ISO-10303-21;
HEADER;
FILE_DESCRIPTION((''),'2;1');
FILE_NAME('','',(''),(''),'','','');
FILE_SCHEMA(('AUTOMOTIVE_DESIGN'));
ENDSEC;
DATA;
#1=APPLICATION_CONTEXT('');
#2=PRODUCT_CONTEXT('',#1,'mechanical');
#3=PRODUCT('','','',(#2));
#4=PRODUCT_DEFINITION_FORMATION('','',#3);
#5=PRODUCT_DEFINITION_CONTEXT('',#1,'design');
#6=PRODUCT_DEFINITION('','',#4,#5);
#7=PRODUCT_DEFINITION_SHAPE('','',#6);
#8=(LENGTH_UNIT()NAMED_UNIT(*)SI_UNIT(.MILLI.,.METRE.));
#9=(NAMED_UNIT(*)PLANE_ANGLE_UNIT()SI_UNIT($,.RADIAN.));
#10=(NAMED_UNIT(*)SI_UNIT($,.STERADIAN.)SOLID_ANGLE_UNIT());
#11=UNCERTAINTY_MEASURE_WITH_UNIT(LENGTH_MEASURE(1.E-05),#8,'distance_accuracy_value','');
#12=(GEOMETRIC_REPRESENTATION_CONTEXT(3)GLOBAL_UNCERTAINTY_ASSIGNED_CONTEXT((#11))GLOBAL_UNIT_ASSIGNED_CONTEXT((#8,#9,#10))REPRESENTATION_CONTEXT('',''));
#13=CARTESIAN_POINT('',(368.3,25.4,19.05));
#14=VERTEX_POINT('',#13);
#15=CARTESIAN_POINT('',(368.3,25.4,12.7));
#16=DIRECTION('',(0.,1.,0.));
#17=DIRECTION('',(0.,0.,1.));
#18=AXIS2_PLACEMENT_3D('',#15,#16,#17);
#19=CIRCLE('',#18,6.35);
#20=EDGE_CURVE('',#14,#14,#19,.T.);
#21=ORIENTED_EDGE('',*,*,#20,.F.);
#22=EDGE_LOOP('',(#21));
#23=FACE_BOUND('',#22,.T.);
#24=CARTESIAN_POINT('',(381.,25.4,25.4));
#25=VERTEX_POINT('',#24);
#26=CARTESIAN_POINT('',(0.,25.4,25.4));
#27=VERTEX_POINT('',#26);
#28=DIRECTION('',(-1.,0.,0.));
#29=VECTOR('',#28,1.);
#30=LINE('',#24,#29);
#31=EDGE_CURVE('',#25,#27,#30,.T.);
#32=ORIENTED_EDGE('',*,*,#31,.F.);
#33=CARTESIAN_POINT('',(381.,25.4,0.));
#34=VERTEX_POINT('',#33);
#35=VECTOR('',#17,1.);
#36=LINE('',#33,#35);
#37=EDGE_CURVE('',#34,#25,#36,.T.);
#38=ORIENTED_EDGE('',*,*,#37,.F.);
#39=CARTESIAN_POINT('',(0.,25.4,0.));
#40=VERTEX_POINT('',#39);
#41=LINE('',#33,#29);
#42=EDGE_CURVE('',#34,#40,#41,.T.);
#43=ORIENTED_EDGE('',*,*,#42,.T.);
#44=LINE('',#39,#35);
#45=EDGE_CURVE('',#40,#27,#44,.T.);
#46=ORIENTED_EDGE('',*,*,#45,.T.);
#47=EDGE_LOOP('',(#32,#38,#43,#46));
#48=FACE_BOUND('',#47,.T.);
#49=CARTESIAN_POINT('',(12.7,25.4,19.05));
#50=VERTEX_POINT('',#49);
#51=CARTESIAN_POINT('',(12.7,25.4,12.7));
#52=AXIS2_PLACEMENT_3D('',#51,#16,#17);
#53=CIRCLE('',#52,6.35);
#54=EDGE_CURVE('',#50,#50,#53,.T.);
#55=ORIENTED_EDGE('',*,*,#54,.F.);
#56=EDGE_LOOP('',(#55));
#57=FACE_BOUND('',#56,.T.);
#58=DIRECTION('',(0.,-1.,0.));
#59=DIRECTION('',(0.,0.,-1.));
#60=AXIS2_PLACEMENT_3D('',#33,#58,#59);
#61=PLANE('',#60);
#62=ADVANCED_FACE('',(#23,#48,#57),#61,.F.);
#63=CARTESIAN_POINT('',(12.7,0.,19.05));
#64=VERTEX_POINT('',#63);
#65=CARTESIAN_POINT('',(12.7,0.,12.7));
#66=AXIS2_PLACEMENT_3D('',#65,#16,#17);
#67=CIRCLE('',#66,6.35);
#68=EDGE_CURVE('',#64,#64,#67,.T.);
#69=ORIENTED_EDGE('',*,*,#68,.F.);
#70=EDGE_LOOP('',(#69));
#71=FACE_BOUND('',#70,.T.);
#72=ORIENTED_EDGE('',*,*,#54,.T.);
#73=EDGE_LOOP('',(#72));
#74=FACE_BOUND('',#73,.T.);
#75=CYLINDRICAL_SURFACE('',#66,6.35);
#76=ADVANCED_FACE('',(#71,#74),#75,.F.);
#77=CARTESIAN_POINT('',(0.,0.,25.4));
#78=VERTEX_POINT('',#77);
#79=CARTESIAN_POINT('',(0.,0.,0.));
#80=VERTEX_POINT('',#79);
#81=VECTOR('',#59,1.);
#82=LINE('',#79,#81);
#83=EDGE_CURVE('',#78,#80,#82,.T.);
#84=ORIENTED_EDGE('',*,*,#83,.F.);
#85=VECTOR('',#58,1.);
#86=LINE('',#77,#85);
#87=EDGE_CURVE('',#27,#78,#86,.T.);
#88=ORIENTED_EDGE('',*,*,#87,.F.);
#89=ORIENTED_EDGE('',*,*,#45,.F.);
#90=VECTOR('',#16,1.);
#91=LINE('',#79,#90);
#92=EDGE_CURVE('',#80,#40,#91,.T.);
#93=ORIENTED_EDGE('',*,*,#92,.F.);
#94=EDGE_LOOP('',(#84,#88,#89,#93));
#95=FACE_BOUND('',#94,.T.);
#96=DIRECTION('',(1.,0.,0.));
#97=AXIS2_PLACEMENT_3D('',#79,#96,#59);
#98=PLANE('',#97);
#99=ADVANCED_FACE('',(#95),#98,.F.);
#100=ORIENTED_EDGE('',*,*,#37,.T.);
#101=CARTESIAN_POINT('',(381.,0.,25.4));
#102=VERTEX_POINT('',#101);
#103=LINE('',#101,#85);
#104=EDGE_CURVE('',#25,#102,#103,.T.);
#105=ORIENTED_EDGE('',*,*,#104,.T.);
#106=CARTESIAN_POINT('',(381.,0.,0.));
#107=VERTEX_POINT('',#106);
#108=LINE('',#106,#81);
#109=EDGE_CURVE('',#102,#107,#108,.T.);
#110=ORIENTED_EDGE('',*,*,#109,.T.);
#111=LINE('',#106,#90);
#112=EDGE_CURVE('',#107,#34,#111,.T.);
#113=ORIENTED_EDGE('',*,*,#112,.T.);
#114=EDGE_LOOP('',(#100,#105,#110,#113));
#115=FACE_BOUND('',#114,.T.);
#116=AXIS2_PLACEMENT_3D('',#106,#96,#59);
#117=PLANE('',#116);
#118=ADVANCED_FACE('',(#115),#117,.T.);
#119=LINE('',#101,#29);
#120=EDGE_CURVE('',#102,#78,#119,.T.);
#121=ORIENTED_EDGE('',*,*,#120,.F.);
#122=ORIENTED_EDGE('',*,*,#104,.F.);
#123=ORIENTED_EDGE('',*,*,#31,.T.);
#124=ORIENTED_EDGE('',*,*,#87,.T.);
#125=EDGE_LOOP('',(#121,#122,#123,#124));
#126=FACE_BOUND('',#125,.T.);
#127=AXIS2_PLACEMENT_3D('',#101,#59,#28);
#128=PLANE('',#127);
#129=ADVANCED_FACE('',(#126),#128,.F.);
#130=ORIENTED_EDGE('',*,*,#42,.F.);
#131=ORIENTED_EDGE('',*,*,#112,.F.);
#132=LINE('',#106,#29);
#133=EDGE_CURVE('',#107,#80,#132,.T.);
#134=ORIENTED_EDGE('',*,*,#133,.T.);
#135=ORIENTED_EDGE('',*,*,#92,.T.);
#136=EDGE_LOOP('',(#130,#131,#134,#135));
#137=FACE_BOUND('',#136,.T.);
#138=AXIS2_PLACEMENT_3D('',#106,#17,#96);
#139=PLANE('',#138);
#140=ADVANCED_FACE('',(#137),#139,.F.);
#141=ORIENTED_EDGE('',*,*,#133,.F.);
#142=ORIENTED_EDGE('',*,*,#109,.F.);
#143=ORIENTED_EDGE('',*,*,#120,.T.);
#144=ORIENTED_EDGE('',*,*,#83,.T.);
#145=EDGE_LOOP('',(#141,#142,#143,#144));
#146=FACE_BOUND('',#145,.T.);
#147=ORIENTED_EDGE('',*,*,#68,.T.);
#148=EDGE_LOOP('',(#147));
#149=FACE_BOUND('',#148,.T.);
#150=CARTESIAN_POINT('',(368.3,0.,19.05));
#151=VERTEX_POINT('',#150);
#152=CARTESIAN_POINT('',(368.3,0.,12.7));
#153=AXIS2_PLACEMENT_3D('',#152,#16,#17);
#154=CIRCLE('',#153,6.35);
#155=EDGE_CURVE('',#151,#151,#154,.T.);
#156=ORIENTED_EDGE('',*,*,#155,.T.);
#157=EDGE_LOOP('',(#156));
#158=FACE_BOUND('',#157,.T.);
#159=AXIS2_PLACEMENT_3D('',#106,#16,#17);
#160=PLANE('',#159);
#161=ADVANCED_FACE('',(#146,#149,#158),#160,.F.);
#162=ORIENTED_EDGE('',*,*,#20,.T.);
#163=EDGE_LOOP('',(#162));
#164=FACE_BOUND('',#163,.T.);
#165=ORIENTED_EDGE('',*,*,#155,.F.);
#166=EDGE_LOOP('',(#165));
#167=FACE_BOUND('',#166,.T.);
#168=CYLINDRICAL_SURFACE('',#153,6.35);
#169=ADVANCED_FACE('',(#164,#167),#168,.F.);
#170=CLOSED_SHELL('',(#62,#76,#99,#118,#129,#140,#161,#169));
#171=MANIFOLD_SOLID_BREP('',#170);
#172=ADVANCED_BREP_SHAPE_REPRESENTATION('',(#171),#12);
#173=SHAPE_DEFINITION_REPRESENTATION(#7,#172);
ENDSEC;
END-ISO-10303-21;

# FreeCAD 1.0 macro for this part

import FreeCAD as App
import Part
import Sketcher

V = App.Vector
Q = App.Units.Quantity

doc = App.newDocument("Part")
body = doc.addObject("PartDesign::Body", "Body")

# Sketch on YZ plane
sketch1 = doc.addObject("Sketcher::SketchObject", "Sketch")
body.addObject(sketch1)
sketch1.AttachmentSupport = (doc.YZ_Plane, [""])
sketch1.MapMode = "FlatFace"
sketch1.addGeometry(Part.LineSegment(V(25, 25, 0), V(0, 25, 0)), False)
sketch1.addGeometry(Part.LineSegment(V(0, 25, 0), V(0, 0, 0)), False)
sketch1.addGeometry(Part.LineSegment(V(0, 0, 0), V(25, 0, 0)), False)
sketch1.addGeometry(Part.LineSegment(V(25, 0, 0), V(25, 25, 0)), False)
sketch1.addConstraint(Sketcher.Constraint("Coincident", 0, 2, 1, 1))
sketch1.addConstraint(Sketcher.Constraint("Coincident", 1, 2, 2, 1))
sketch1.addConstraint(Sketcher.Constraint("Coincident", 2, 2, 3, 1))
sketch1.addConstraint(Sketcher.Constraint("Coincident", 3, 2, 0, 1))
sketch1.addConstraint(Sketcher.Constraint("Horizontal", 0))
sketch1.addConstraint(Sketcher.Constraint("Vertical", 1))
sketch1.addConstraint(Sketcher.Constraint("Horizontal", 2))
sketch1.addConstraint(Sketcher.Constraint("Vertical", 3))
sketch1.addConstraint(Sketcher.Constraint("Coincident", 1, 2, -1, 1))
sketch1.addConstraint(Sketcher.Constraint("Equal", 2, 1))
sketch1.addConstraint(Sketcher.Constraint("DistanceX", 0, 2, 0, 1, Q("1 in")))
pad1 = doc.addObject("PartDesign::Pad", "Pad")
body.addObject(pad1)
pad1.Profile = sketch1
pad1.Length = Q("15 in")

# Sketch on XZ plane
sketch2 = doc.addObject("Sketcher::SketchObject", "Sketch001")
body.addObject(sketch2)
sketch2.AttachmentSupport = (doc.XZ_Plane, [""])
sketch2.MapMode = "FlatFace"
sketch2.AttachmentOffset = App.Placement(V(0, 0, -1 * 25.4), App.Rotation())
sketch2.addGeometry(Part.Circle(V(368, 13, 0), V(0, 0, 1), 6), False)
sketch2.addGeometry(Part.Circle(V(13, 13, 0), V(0, 0, 1), 6), False)
sketch2.addConstraint(Sketcher.Constraint("Equal", 0, 1))
sketch2.addConstraint(Sketcher.Constraint("Horizontal", 0, 3, 1, 3))
sketch2.addConstraint(Sketcher.Constraint("Diameter", 0, Q("0.5 in")))
sketch2.addConstraint(Sketcher.Constraint("DistanceX", 1, 3, 0, 3, Q("14 in")))
sketch2.addConstraint(Sketcher.Constraint("DistanceX", -1, 1, 0, 3, Q("14.5 in")))
sketch2.addConstraint(Sketcher.Constraint("DistanceY", -1, 1, 0, 3, Q("0.5 in")))
pocket1 = doc.addObject("PartDesign::Pocket", "Pocket")
body.addObject(pocket1)
pocket1.Profile = sketch2
pocket1.Type = "ThroughAll"
pocket1.Reversed = True

doc.recompute()
